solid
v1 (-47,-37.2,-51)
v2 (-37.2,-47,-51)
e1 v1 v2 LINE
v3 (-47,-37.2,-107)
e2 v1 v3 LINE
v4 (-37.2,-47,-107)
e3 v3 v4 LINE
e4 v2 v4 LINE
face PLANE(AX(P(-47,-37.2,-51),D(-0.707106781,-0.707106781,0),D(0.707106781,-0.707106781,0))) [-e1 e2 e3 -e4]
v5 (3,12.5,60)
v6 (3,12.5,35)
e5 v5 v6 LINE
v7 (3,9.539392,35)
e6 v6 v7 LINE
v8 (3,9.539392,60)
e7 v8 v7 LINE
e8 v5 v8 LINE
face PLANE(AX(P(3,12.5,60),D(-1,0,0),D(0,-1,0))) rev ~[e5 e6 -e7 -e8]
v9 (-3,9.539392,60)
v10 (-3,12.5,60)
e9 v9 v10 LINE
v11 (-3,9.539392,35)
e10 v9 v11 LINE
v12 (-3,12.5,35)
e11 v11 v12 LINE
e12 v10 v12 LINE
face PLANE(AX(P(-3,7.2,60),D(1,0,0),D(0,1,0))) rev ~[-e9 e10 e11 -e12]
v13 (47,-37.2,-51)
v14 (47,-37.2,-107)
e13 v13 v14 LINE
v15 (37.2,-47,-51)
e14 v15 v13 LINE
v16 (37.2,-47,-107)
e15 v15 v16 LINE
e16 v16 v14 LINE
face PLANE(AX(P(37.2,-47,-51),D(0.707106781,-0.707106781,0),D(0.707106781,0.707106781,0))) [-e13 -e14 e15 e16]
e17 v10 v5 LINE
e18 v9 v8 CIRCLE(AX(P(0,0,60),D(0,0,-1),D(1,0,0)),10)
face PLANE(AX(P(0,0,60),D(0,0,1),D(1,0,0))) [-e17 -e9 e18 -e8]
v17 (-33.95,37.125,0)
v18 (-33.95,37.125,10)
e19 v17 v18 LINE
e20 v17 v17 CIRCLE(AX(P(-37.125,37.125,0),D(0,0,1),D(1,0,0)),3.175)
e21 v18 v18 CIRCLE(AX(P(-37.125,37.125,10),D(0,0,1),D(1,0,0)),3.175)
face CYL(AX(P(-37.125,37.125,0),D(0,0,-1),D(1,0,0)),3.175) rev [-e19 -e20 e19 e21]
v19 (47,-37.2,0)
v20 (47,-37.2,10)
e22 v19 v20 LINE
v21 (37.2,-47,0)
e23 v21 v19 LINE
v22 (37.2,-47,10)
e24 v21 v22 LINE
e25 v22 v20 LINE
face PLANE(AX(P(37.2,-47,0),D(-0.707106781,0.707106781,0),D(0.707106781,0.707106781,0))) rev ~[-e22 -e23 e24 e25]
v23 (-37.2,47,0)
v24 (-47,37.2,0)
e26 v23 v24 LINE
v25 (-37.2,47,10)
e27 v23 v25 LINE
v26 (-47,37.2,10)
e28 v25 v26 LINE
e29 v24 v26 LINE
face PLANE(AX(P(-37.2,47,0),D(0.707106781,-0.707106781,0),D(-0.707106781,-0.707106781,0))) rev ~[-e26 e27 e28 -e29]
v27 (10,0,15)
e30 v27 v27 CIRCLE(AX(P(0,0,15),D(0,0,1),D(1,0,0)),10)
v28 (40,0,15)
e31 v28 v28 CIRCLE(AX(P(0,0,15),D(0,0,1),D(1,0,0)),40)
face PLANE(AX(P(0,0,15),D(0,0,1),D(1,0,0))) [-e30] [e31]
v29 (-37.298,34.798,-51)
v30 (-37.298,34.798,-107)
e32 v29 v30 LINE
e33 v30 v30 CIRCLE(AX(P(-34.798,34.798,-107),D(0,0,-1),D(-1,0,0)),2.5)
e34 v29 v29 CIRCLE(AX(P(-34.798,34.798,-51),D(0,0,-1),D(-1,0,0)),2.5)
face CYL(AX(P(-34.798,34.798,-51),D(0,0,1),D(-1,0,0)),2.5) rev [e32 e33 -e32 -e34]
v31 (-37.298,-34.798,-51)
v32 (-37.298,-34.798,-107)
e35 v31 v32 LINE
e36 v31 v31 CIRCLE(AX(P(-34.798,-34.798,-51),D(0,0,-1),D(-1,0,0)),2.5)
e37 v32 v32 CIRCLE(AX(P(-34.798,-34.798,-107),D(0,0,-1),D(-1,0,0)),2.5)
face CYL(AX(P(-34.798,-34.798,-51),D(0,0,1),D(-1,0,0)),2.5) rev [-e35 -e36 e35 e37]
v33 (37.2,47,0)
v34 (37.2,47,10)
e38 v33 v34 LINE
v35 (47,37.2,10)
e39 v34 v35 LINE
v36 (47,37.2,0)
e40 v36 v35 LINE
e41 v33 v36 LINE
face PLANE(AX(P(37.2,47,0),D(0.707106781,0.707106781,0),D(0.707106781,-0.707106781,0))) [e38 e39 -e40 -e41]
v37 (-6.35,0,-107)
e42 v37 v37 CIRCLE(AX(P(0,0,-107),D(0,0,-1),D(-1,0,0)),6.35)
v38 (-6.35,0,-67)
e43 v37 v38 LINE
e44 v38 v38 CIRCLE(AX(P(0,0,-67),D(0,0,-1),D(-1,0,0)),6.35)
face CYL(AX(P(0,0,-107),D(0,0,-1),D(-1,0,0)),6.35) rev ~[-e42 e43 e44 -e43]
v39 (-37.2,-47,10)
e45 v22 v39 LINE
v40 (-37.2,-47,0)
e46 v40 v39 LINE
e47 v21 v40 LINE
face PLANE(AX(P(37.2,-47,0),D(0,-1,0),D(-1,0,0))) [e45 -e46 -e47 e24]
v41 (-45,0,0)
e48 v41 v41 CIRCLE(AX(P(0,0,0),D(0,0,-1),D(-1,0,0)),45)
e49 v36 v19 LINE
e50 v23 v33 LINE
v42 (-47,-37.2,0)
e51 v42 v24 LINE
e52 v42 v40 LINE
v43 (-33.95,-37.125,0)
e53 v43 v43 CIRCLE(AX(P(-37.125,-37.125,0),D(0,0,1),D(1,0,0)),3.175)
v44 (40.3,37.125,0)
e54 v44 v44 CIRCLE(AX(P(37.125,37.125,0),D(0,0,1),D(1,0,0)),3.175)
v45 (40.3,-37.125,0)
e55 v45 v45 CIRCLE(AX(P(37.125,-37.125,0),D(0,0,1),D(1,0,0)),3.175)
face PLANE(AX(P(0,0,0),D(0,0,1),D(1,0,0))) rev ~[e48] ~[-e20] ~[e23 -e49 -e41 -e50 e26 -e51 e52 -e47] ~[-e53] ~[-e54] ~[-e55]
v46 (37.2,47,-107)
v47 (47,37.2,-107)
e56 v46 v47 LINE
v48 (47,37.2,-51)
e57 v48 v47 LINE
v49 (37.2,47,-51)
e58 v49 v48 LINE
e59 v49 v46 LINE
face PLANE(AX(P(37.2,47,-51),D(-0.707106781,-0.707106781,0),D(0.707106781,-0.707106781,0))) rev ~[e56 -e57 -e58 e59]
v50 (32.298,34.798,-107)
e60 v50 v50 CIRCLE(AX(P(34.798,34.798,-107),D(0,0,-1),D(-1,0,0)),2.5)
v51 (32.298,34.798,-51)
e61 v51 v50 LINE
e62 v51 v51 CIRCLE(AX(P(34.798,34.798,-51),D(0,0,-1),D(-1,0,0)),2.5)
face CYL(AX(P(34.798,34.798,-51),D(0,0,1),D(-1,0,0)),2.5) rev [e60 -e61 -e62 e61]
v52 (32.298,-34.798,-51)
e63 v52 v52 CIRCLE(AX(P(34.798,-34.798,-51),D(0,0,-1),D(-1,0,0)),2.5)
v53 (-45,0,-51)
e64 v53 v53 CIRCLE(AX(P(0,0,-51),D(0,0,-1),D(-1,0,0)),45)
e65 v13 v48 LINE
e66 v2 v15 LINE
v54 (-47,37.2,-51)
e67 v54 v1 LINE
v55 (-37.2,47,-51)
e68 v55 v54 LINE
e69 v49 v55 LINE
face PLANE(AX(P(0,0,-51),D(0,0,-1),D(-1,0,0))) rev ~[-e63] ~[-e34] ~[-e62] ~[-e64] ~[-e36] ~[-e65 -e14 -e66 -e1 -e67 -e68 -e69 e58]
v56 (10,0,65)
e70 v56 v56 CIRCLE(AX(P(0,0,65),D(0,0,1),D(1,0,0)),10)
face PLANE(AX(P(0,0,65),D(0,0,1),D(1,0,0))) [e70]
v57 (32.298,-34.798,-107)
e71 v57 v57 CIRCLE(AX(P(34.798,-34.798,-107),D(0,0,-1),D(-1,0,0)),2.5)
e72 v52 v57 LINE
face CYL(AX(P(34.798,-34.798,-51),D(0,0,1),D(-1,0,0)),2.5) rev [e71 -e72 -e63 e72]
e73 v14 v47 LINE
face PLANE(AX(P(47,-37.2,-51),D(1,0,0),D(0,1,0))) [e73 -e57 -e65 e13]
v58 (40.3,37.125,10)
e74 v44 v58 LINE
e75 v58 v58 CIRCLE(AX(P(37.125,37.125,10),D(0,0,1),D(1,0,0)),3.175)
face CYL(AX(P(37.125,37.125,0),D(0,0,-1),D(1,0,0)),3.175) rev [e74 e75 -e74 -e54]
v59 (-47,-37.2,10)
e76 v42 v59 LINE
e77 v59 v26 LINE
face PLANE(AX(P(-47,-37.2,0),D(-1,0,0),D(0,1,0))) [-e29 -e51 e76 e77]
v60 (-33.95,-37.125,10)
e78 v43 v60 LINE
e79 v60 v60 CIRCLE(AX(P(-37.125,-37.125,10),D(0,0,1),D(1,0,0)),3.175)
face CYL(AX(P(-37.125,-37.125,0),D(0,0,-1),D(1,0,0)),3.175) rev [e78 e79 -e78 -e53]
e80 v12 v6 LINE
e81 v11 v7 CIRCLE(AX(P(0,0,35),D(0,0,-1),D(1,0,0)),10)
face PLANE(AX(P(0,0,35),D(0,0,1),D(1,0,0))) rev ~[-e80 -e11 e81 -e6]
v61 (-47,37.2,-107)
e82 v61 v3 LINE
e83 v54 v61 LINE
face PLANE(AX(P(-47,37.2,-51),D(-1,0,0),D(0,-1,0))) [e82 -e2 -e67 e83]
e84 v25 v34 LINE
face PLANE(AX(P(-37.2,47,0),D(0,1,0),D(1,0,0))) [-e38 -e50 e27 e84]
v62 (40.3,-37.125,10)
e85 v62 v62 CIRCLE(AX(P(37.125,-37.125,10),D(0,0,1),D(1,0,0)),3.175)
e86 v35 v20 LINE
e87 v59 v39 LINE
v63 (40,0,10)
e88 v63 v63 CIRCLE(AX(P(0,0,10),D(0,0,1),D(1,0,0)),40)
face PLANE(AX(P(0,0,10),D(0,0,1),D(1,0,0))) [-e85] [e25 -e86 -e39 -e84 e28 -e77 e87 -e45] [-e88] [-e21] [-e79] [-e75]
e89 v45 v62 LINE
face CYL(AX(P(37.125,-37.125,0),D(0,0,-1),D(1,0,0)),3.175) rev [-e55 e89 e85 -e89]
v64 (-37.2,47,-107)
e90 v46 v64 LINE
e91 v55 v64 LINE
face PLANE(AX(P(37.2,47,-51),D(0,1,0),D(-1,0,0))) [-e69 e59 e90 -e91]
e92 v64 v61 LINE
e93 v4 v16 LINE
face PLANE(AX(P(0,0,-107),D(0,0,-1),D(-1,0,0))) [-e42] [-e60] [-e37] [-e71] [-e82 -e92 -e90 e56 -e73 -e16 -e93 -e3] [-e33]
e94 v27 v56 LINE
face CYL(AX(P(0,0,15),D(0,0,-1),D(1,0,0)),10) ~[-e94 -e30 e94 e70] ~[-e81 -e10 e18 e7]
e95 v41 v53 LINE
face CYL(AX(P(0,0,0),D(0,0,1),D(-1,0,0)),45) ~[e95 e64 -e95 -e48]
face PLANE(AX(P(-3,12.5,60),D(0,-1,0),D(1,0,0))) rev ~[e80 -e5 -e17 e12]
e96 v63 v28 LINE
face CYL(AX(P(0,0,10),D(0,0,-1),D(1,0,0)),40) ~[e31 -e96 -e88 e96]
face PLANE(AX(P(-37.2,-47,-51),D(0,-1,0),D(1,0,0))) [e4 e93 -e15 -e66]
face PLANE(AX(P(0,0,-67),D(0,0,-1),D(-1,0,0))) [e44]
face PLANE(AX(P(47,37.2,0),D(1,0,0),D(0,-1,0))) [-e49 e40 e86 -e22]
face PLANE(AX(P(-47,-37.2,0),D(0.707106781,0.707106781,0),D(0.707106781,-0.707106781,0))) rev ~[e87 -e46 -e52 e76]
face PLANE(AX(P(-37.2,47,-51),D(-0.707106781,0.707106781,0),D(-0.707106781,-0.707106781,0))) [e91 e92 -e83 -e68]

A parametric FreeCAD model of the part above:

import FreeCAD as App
import Part
import Sketcher

V = App.Vector

doc = App.newDocument("Part")
params = doc.addObject("Spreadsheet::Sheet", "Params")
for row, (alias, value) in enumerate([
    ("sketch1_diameter", "6.35 mm"),
    ("pad1_length", "10 mm"),
    ("sketch2_diameter", "80 mm"),
    ("pad2_length", "5 mm"),
    ("sketch3_diameter", "20 mm"),
    ("pad3_length", "50 mm"),
    ("sketch4_width", "6 mm"),
    ("sketch4_height", "5.3 mm"),
    ("pad4_length", "25 mm"),
    ("sketch5_diameter", "90 mm"),
    ("pad5_length", "51 mm"),
    ("sketch6_diameter", "5 mm"),
    ("sketch6_width", "74.4 mm"),
    ("pad6_length", "56 mm"),
    ("sketch7_diameter", "12.7 mm"),
    ("pocket1_length", "40 mm"),
], start=1):
    params.set(f"A{row}", alias)
    params.set(f"B{row}", "=" + value)
    params.setAlias(f"B{row}", alias)

body = doc.addObject("PartDesign::Body", "Body")

# Sketch on XY plane
sketch1 = doc.addObject("Sketcher::SketchObject", "Sketch")
body.addObject(sketch1)
sketch1.AttachmentSupport = (doc.XY_Plane, [""])
sketch1.MapMode = "FlatFace"
sketch1.addGeometry(Part.LineSegment(V(37.2, 47, 0), V(-37.2, 47, 0)), False)
sketch1.addGeometry(Part.LineSegment(V(-37.2, 47, 0), V(-47, 37.2, 0)), False)
sketch1.addGeometry(Part.LineSegment(V(-47, 37.2, 0), V(-47, -37.2, 0)), False)
sketch1.addGeometry(Part.LineSegment(V(-47, -37.2, 0), V(-37.2, -47, 0)), False)
sketch1.addGeometry(Part.LineSegment(V(-37.2, -47, 0), V(37.2, -47, 0)), False)
sketch1.addGeometry(Part.LineSegment(V(37.2, -47, 0), V(47, -37.2, 0)), False)
sketch1.addGeometry(Part.LineSegment(V(47, -37.2, 0), V(47, 37.2, 0)), False)
sketch1.addGeometry(Part.LineSegment(V(47, 37.2, 0), V(37.2, 47, 0)), False)
sketch1.addGeometry(Part.Circle(V(-37.1, -37.1, 0), V(0, 0, 1), 3.2), False)
sketch1.addGeometry(Part.Circle(V(37.1, -37.1, 0), V(0, 0, 1), 3.2), False)
sketch1.addGeometry(Part.Circle(V(-37.1, 37.1, 0), V(0, 0, 1), 3.2), False)
sketch1.addGeometry(Part.Circle(V(37.1, 37.1, 0), V(0, 0, 1), 3.2), False)
sketch1.addConstraint(Sketcher.Constraint("Coincident", 0, 2, 1, 1))
sketch1.addConstraint(Sketcher.Constraint("Coincident", 1, 2, 2, 1))
sketch1.addConstraint(Sketcher.Constraint("Coincident", 2, 2, 3, 1))
sketch1.addConstraint(Sketcher.Constraint("Coincident", 3, 2, 4, 1))
sketch1.addConstraint(Sketcher.Constraint("Coincident", 4, 2, 5, 1))
sketch1.addConstraint(Sketcher.Constraint("Coincident", 5, 2, 6, 1))
sketch1.addConstraint(Sketcher.Constraint("Coincident", 6, 2, 7, 1))
sketch1.addConstraint(Sketcher.Constraint("Coincident", 7, 2, 0, 1))
sketch1.addConstraint(Sketcher.Constraint("Horizontal", 0))
sketch1.addConstraint(Sketcher.Constraint("Vertical", 2))
sketch1.addConstraint(Sketcher.Constraint("Horizontal", 4))
sketch1.addConstraint(Sketcher.Constraint("Vertical", 6))
sketch1.addConstraint(Sketcher.Constraint("Equal", 8, 9))
sketch1.addConstraint(Sketcher.Constraint("Equal", 9, 10))
sketch1.addConstraint(Sketcher.Constraint("Equal", 10, 11))
sketch1.addConstraint(Sketcher.Constraint("Symmetric", 9, 3, 10, 3, -1, 1))
sketch1.addConstraint(Sketcher.Constraint("Symmetric", 8, 3, 11, 3, -1, 1))
sketch1.addConstraint(Sketcher.Constraint("Symmetric", 0, 2, 4, 2, -1, 1))
sketch1.addConstraint(Sketcher.Constraint("Symmetric", 1, 2, 5, 2, -1, 1))
sketch1.addConstraint(Sketcher.Constraint("Symmetric", 8, 3, 9, 3, -2))
sketch1.addConstraint(Sketcher.Constraint("Perpendicular", 1, 3))
sketch1.addConstraint(Sketcher.Constraint("Perpendicular", 5, 7))
sketch1.addConstraint(Sketcher.Constraint("Horizontal", 2, 2, 5, 2))
sketch1.addConstraint(Sketcher.Constraint("Horizontal", 1, 2, 6, 2))
sketch1.addConstraint(Sketcher.Constraint("Vertical", 0, 2, 3, 2))
sketch1.addConstraint(Sketcher.Constraint("Equal", 4, 2))
sketch1.addConstraint(Sketcher.Constraint("Diameter", 8, 6.35))
sketch1.addConstraint(Sketcher.Constraint("DistanceY", -1, 1, 0, 2, 47.0))
sketch1.addConstraint(Sketcher.Constraint("DistanceX", 1, 2, 0, 2, 9.8))
sketch1.addConstraint(Sketcher.Constraint("DistanceX", 8, 3, 9, 3, 74.25))
sketch1.addConstraint(Sketcher.Constraint("DistanceY", 8, 3, 10, 3, 74.25))
sketch1.setExpression("Constraints[26]", "Params.sketch1_diameter")
pad1 = doc.addObject("PartDesign::Pad", "Pad")
body.addObject(pad1)
pad1.Profile = sketch1
pad1.setExpression("Length", "Params.pad1_length")

# Sketch on XY plane
sketch2 = doc.addObject("Sketcher::SketchObject", "Sketch001")
body.addObject(sketch2)
sketch2.AttachmentSupport = (doc.XY_Plane, [""])
sketch2.MapMode = "FlatFace"
sketch2.AttachmentOffset = App.Placement(V(0, 0, 10), App.Rotation())
sketch2.addGeometry(Part.Circle(V(0, 0, 0), V(0, 0, 1), 40), False)
sketch2.addConstraint(Sketcher.Constraint("Coincident", 0, 3, -1, 1))
sketch2.addConstraint(Sketcher.Constraint("Diameter", 0, 80.0))
sketch2.setExpression("Constraints[1]", "Params.sketch2_diameter")
pad2 = doc.addObject("PartDesign::Pad", "Pad001")
body.addObject(pad2)
pad2.Profile = sketch2
pad2.setExpression("Length", "Params.pad2_length")

# Sketch on XY plane
sketch3 = doc.addObject("Sketcher::SketchObject", "Sketch002")
body.addObject(sketch3)
sketch3.AttachmentSupport = (doc.XY_Plane, [""])
sketch3.MapMode = "FlatFace"
sketch3.AttachmentOffset = App.Placement(V(0, 0, 15), App.Rotation())
sketch3.addGeometry(Part.Circle(V(0, 0, 0), V(0, 0, 1), 10), False)
sketch3.addConstraint(Sketcher.Constraint("Coincident", 0, 3, -1, 1))
sketch3.addConstraint(Sketcher.Constraint("Diameter", 0, 20.0))
sketch3.setExpression("Constraints[1]", "Params.sketch3_diameter")
pad3 = doc.addObject("PartDesign::Pad", "Pad002")
body.addObject(pad3)
pad3.Profile = sketch3
pad3.setExpression("Length", "Params.pad3_length")

# Sketch on XY plane
sketch4 = doc.addObject("Sketcher::SketchObject", "Sketch003")
body.addObject(sketch4)
sketch4.AttachmentSupport = (doc.XY_Plane, [""])
sketch4.MapMode = "FlatFace"
sketch4.AttachmentOffset = App.Placement(V(0, 0, 60), App.Rotation())
sketch4.addGeometry(Part.LineSegment(V(3, 12, 0), V(-3, 12, 0)), False)
sketch4.addGeometry(Part.LineSegment(V(-3, 12, 0), V(-3, 7, 0)), False)
sketch4.addGeometry(Part.LineSegment(V(-3, 7, 0), V(3, 7, 0)), False)
sketch4.addGeometry(Part.LineSegment(V(3, 7, 0), V(3, 12, 0)), False)
sketch4.addConstraint(Sketcher.Constraint("Coincident", 0, 2, 1, 1))
sketch4.addConstraint(Sketcher.Constraint("Coincident", 1, 2, 2, 1))
sketch4.addConstraint(Sketcher.Constraint("Coincident", 2, 2, 3, 1))
sketch4.addConstraint(Sketcher.Constraint("Coincident", 3, 2, 0, 1))
sketch4.addConstraint(Sketcher.Constraint("Horizontal", 0))
sketch4.addConstraint(Sketcher.Constraint("Vertical", 1))
sketch4.addConstraint(Sketcher.Constraint("Horizontal", 2))
sketch4.addConstraint(Sketcher.Constraint("Vertical", 3))
sketch4.addConstraint(Sketcher.Constraint("DistanceX", 0, 2, 0, 1, 6.0))
sketch4.addConstraint(Sketcher.Constraint("DistanceX", 0, 2, -1, 1, 3.0))
sketch4.addConstraint(Sketcher.Constraint("DistanceY", -1, 1, 0, 2, 12.5))
sketch4.addConstraint(Sketcher.Constraint("DistanceY", 1, 2, 1, 1, 5.3))
sketch4.setExpression("Constraints[8]", "Params.sketch4_width")
sketch4.setExpression("Constraints[11]", "Params.sketch4_height")
pad4 = doc.addObject("PartDesign::Pad", "Pad003")
body.addObject(pad4)
pad4.Profile = sketch4
pad4.setExpression("Length", "Params.pad4_length")
pad4.Reversed = True

# Sketch on XY plane
sketch5 = doc.addObject("Sketcher::SketchObject", "Sketch004")
body.addObject(sketch5)
sketch5.AttachmentSupport = (doc.XY_Plane, [""])
sketch5.MapMode = "FlatFace"
sketch5.addGeometry(Part.Circle(V(0, 0, 0), V(0, 0, 1), 45), False)
sketch5.addConstraint(Sketcher.Constraint("Coincident", 0, 3, -1, 1))
sketch5.addConstraint(Sketcher.Constraint("Diameter", 0, 90.0))
sketch5.setExpression("Constraints[1]", "Params.sketch5_diameter")
pad5 = doc.addObject("PartDesign::Pad", "Pad004")
body.addObject(pad5)
pad5.Profile = sketch5
pad5.setExpression("Length", "Params.pad5_length")
pad5.Reversed = True

# Sketch on XY plane
sketch6 = doc.addObject("Sketcher::SketchObject", "Sketch005")
body.addObject(sketch6)
sketch6.AttachmentSupport = (doc.XY_Plane, [""])
sketch6.MapMode = "FlatFace"
sketch6.AttachmentOffset = App.Placement(V(0, 0, -51), App.Rotation())
sketch6.addGeometry(Part.LineSegment(V(-37.2, 47, 0), V(37.2, 47, 0)), False)
sketch6.addGeometry(Part.LineSegment(V(37.2, 47, 0), V(47, 37.2, 0)), False)
sketch6.addGeometry(Part.LineSegment(V(47, 37.2, 0), V(47, -37.2, 0)), False)
sketch6.addGeometry(Part.LineSegment(V(47, -37.2, 0), V(37.2, -47, 0)), False)
sketch6.addGeometry(Part.LineSegment(V(37.2, -47, 0), V(-37.2, -47, 0)), False)
sketch6.addGeometry(Part.LineSegment(V(-37.2, -47, 0), V(-47, -37.2, 0)), False)
sketch6.addGeometry(Part.LineSegment(V(-47, -37.2, 0), V(-47, 37.2, 0)), False)
sketch6.addGeometry(Part.LineSegment(V(-47, 37.2, 0), V(-37.2, 47, 0)), False)
sketch6.addGeometry(Part.Circle(V(34.8, -34.8, 0), V(0, 0, 1), 2.5), False)
sketch6.addGeometry(Part.Circle(V(-34.8, -34.8, 0), V(0, 0, 1), 2.5), False)
sketch6.addGeometry(Part.Circle(V(34.8, 34.8, 0), V(0, 0, 1), 2.5), False)
sketch6.addGeometry(Part.Circle(V(-34.8, 34.8, 0), V(0, 0, 1), 2.5), False)
sketch6.addConstraint(Sketcher.Constraint("Coincident", 0, 2, 1, 1))
sketch6.addConstraint(Sketcher.Constraint("Coincident", 1, 2, 2, 1))
sketch6.addConstraint(Sketcher.Constraint("Coincident", 2, 2, 3, 1))
sketch6.addConstraint(Sketcher.Constraint("Coincident", 3, 2, 4, 1))
sketch6.addConstraint(Sketcher.Constraint("Coincident", 4, 2, 5, 1))
sketch6.addConstraint(Sketcher.Constraint("Coincident", 5, 2, 6, 1))
sketch6.addConstraint(Sketcher.Constraint("Coincident", 6, 2, 7, 1))
sketch6.addConstraint(Sketcher.Constraint("Coincident", 7, 2, 0, 1))
sketch6.addConstraint(Sketcher.Constraint("Horizontal", 0))
sketch6.addConstraint(Sketcher.Constraint("Vertical", 2))
sketch6.addConstraint(Sketcher.Constraint("Horizontal", 4))
sketch6.addConstraint(Sketcher.Constraint("Vertical", 6))
sketch6.addConstraint(Sketcher.Constraint("Equal", 8, 9))
sketch6.addConstraint(Sketcher.Constraint("Equal", 9, 10))
sketch6.addConstraint(Sketcher.Constraint("Equal", 10, 11))
sketch6.addConstraint(Sketcher.Constraint("Symmetric", 9, 3, 10, 3, -1, 1))
sketch6.addConstraint(Sketcher.Constraint("Symmetric", 8, 3, 11, 3, -1, 1))
sketch6.addConstraint(Sketcher.Constraint("Symmetric", 0, 2, 4, 2, -1, 1))
sketch6.addConstraint(Sketcher.Constraint("Symmetric", 1, 2, 5, 2, -1, 1))
sketch6.addConstraint(Sketcher.Constraint("Symmetric", 8, 3, 9, 3, -2))
sketch6.addConstraint(Sketcher.Constraint("Perpendicular", 1, 3))
sketch6.addConstraint(Sketcher.Constraint("Perpendicular", 5, 7))
sketch6.addConstraint(Sketcher.Constraint("Horizontal", 2, 2, 5, 2))
sketch6.addConstraint(Sketcher.Constraint("Horizontal", 1, 2, 6, 2))
sketch6.addConstraint(Sketcher.Constraint("Vertical", 0, 2, 3, 2))
sketch6.addConstraint(Sketcher.Constraint("Equal", 4, 2))
sketch6.addConstraint(Sketcher.Constraint("Diameter", 8, 5.0))
sketch6.addConstraint(Sketcher.Constraint("DistanceX", 0, 2, 1, 2, 9.8))
sketch6.addConstraint(Sketcher.Constraint("DistanceX", 0, 1, 0, 2, 74.4))
sketch6.addConstraint(Sketcher.Constraint("DistanceX", -1, 1, 8, 3, 34.798))
sketch6.addConstraint(Sketcher.Constraint("DistanceY", 8, 3, -1, 1, 34.798))
sketch6.setExpression("Constraints[26]", "Params.sketch6_diameter")
sketch6.setExpression("Constraints[28]", "Params.sketch6_width")
pad6 = doc.addObject("PartDesign::Pad", "Pad005")
body.addObject(pad6)
pad6.Profile = sketch6
pad6.setExpression("Length", "Params.pad6_length")
pad6.Reversed = True

# Sketch on XY plane
sketch7 = doc.addObject("Sketcher::SketchObject", "Sketch006")
body.addObject(sketch7)
sketch7.AttachmentSupport = (doc.XY_Plane, [""])
sketch7.MapMode = "FlatFace"
sketch7.AttachmentOffset = App.Placement(V(0, 0, -107), App.Rotation())
sketch7.addGeometry(Part.Circle(V(0, 0, 0), V(0, 0, 1), 6), False)
sketch7.addConstraint(Sketcher.Constraint("Coincident", 0, 3, -1, 1))
sketch7.addConstraint(Sketcher.Constraint("Diameter", 0, 12.7))
sketch7.setExpression("Constraints[1]", "Params.sketch7_diameter")
pocket1 = doc.addObject("PartDesign::Pocket", "Pocket")
body.addObject(pocket1)
pocket1.Profile = sketch7
pocket1.setExpression("Length", "Params.pocket1_length")
pocket1.Reversed = True

doc.recompute()
